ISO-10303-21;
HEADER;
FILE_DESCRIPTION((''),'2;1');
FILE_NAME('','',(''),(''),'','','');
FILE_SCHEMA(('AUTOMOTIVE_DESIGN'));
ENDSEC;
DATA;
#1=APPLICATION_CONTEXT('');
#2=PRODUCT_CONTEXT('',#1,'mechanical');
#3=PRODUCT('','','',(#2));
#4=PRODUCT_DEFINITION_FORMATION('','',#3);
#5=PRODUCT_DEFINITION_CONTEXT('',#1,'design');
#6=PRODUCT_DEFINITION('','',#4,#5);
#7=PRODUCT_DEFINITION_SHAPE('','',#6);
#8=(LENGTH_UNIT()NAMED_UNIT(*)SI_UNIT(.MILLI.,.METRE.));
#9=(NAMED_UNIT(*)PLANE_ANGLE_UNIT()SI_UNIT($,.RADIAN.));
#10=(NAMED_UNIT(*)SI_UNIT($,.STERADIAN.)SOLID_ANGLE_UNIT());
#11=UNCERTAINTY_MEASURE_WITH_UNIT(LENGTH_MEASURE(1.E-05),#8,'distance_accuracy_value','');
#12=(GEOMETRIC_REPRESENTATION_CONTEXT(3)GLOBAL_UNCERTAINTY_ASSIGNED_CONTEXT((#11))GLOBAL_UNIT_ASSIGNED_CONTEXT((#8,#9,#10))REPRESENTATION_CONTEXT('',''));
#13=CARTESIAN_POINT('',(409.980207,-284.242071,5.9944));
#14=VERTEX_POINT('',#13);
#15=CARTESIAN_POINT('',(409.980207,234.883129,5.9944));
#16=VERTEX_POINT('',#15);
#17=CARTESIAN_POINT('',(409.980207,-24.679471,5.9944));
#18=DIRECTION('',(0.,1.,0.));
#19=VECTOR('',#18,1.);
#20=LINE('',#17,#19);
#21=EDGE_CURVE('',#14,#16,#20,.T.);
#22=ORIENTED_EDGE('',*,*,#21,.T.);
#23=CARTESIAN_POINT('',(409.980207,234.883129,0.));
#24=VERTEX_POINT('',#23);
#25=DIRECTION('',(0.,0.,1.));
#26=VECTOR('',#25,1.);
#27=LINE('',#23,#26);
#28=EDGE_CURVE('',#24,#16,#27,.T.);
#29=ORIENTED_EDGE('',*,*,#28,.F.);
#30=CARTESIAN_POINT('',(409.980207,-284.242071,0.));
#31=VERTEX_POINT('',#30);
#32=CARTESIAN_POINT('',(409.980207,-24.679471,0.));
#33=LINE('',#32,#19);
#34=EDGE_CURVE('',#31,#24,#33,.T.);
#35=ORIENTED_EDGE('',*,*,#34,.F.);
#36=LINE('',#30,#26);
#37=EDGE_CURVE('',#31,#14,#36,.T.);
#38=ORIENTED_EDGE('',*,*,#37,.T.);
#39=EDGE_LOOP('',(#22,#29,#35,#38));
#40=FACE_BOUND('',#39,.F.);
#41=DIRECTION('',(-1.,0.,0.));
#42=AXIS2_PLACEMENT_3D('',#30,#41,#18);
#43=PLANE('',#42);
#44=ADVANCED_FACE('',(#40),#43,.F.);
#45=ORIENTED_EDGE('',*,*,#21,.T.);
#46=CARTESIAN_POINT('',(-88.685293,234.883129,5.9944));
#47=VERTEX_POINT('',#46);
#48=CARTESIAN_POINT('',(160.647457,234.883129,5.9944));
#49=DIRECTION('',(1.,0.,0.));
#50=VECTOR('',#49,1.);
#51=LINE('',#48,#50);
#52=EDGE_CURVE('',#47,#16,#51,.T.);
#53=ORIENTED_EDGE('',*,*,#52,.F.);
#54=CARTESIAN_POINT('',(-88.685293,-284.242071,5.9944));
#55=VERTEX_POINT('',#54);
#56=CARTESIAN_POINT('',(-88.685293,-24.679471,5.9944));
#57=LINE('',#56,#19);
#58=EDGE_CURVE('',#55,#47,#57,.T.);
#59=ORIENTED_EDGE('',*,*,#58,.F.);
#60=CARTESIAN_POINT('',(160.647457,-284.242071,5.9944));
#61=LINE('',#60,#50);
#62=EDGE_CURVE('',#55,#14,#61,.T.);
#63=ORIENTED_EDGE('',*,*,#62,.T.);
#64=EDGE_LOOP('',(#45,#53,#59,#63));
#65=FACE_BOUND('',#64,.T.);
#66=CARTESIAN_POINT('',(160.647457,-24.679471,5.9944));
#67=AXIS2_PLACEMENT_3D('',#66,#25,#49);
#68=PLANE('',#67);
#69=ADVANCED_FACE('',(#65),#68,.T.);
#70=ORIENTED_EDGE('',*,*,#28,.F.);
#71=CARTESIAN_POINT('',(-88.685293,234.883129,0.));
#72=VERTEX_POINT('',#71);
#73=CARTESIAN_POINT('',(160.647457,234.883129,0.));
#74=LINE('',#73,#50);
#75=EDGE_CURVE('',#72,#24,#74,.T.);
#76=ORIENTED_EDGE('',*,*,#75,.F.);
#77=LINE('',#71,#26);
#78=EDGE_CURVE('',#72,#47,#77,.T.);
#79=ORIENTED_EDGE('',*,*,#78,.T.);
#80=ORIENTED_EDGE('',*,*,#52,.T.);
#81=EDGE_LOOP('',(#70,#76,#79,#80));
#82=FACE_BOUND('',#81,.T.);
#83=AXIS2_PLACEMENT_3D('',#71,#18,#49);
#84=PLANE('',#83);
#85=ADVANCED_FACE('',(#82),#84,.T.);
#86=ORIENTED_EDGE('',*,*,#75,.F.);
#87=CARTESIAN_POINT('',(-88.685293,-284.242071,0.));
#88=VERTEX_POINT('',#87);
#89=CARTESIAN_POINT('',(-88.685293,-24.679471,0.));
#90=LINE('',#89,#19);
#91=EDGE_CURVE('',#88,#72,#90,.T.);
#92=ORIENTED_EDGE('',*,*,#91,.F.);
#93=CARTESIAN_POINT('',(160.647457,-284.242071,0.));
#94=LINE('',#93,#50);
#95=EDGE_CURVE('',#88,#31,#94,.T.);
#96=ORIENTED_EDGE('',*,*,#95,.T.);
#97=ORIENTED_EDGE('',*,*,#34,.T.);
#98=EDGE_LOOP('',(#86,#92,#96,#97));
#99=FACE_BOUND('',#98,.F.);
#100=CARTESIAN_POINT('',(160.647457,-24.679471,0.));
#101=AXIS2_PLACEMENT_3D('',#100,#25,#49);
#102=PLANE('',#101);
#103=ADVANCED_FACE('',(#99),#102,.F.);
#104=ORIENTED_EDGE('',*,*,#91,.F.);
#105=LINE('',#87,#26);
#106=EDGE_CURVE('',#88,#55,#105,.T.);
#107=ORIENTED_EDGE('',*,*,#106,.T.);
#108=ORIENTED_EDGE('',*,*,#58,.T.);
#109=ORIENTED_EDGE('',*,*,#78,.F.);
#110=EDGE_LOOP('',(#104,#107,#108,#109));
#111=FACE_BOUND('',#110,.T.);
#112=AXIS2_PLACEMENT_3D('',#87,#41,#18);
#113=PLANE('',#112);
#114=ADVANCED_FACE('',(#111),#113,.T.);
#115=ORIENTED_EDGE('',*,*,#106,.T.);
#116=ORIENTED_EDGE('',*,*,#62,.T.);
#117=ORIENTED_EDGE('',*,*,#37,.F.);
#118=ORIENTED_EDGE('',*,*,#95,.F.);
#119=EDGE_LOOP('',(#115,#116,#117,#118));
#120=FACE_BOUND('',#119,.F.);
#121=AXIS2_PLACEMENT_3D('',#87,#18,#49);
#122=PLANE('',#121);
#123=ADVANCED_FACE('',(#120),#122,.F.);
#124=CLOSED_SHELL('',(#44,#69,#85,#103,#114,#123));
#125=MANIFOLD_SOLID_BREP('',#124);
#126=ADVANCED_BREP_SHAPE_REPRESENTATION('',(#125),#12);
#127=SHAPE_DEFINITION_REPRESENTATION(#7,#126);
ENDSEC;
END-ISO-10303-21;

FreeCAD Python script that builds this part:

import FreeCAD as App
import Part
import Sketcher
Q = App.Units.Quantity

doc = App.newDocument("Part")
body = doc.addObject("PartDesign::Body", "Body")

# Sketch on XY plane
sketch1 = doc.addObject("Sketcher::SketchObject", "Sketch")
body.addObject(sketch1)
sketch1.AttachmentSupport = (doc.XY_Plane, [""])
sketch1.MapMode = "FlatFace"
sketch1.addGeometry(Part.LineSegment(App.Vector(-89, 235, 0), App.Vector(-89, -284, 0)), False)
sketch1.addGeometry(Part.LineSegment(App.Vector(-89, -284, 0), App.Vector(410, -284, 0)), False)
sketch1.addGeometry(Part.LineSegment(App.Vector(410, -284, 0), App.Vector(410, 235, 0)), False)
sketch1.addGeometry(Part.LineSegment(App.Vector(410, 235, 0), App.Vector(-89, 235, 0)), False)
sketch1.addConstraint(Sketcher.Constraint("Coincident", 0, 2, 1, 1))
sketch1.addConstraint(Sketcher.Constraint("Coincident", 1, 2, 2, 1))
sketch1.addConstraint(Sketcher.Constraint("Coincident", 2, 2, 3, 1))
sketch1.addConstraint(Sketcher.Constraint("Coincident", 3, 2, 0, 1))
sketch1.addConstraint(Sketcher.Constraint("Vertical", 0))
sketch1.addConstraint(Sketcher.Constraint("Horizontal", 1))
sketch1.addConstraint(Sketcher.Constraint("Vertical", 2))
sketch1.addConstraint(Sketcher.Constraint("Horizontal", 3))
sketch1.addConstraint(Sketcher.Constraint("DistanceY", 0, 2, 0, 1, Q("20.438 in")))
sketch1.addConstraint(Sketcher.Constraint("DistanceX", 1, 1, 1, 2, Q("19.6325 in")))
sketch1.addConstraint(Sketcher.Constraint("DistanceY", 0, 2, -1, 1, 284.242071))
sketch1.addConstraint(Sketcher.Constraint("DistanceX", 0, 2, -1, 1, 88.685293))
pad1 = doc.addObject("PartDesign::Pad", "Pad")
body.addObject(pad1)
pad1.Profile = sketch1
pad1.Length = Q("0.236 in")

doc.recompute()
